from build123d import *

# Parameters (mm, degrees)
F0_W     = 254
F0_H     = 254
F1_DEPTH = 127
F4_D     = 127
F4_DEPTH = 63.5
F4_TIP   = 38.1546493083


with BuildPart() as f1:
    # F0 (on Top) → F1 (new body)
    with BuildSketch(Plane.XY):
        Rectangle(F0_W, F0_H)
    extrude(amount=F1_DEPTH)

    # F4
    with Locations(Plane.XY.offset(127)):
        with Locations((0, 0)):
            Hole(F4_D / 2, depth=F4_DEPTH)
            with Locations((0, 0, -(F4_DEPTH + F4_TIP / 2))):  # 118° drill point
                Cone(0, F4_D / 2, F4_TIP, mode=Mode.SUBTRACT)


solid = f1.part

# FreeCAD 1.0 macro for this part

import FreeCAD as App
import Part
import Sketcher
Q = App.Units.Quantity

doc = App.newDocument("Part")
body = doc.addObject("PartDesign::Body", "Body")

# Sketch on XY plane
sketch1 = body.newObject("Sketcher::SketchObject", "Sketch")
sketch1.AttachmentSupport = (doc.getObject("XY_Plane"), [""])
sketch1.MapMode = "FlatFace"
sketch1.addGeometry([
    Part.LineSegment(App.Vector(-127, 127, 0), App.Vector(-127, -127, 0)),
    Part.LineSegment(App.Vector(-127, -127, 0), App.Vector(127, -127, 0)),
    Part.LineSegment(App.Vector(127, -127, 0), App.Vector(127, 127, 0)),
    Part.LineSegment(App.Vector(127, 127, 0), App.Vector(-127, 127, 0)),
], False)
sketch1.addConstraint([
    Sketcher.Constraint("Coincident", 0, 2, 1, 1),
    Sketcher.Constraint("Coincident", 1, 2, 2, 1),
    Sketcher.Constraint("Coincident", 2, 2, 3, 1),
    Sketcher.Constraint("Coincident", 3, 2, 0, 1),
    Sketcher.Constraint("Vertical", 0),
    Sketcher.Constraint("Horizontal", 1),
    Sketcher.Constraint("Vertical", 2),
    Sketcher.Constraint("Horizontal", 3),
    Sketcher.Constraint("Symmetric", 0, 2, 2, 2, -1, 1),
    Sketcher.Constraint("Equal", 3, 0),
    Sketcher.Constraint("DistanceX", 1, 1, 1, 2, Q("10 in")),
])
pad1 = body.newObject("PartDesign::Pad", "Pad")
pad1.Profile = sketch1
pad1.Length = Q("5 in")

# Sketch on XY plane
sketch2 = body.newObject("Sketcher::SketchObject", "Sketch001")
sketch2.AttachmentSupport = (doc.getObject("XY_Plane"), [""])
sketch2.MapMode = "FlatFace"
sketch2.AttachmentOffset = App.Placement(App.Vector(0, 0, 5 * 25.4), App.Rotation())
sketch2.addGeometry(Part.Circle(App.Vector(0, 0, 0), App.Vector(0, 0, 1), 64), False)
sketch2.addConstraint([
    Sketcher.Constraint("Coincident", 0, 3, -1, 1),
    Sketcher.Constraint("Diameter", 0, Q("5 in")),
])
doc.recompute()
hole = body.newObject("PartDesign::Hole", "Hole")
hole.Profile = sketch2
hole.ThreadType = "None"
hole.Diameter = Q("5 in")
hole.DepthType = "Dimension"
hole.Depth = Q("2.5 in")
hole.DrillPoint = "Angled"
hole.DrillPointAngle = 118

doc.recompute()
